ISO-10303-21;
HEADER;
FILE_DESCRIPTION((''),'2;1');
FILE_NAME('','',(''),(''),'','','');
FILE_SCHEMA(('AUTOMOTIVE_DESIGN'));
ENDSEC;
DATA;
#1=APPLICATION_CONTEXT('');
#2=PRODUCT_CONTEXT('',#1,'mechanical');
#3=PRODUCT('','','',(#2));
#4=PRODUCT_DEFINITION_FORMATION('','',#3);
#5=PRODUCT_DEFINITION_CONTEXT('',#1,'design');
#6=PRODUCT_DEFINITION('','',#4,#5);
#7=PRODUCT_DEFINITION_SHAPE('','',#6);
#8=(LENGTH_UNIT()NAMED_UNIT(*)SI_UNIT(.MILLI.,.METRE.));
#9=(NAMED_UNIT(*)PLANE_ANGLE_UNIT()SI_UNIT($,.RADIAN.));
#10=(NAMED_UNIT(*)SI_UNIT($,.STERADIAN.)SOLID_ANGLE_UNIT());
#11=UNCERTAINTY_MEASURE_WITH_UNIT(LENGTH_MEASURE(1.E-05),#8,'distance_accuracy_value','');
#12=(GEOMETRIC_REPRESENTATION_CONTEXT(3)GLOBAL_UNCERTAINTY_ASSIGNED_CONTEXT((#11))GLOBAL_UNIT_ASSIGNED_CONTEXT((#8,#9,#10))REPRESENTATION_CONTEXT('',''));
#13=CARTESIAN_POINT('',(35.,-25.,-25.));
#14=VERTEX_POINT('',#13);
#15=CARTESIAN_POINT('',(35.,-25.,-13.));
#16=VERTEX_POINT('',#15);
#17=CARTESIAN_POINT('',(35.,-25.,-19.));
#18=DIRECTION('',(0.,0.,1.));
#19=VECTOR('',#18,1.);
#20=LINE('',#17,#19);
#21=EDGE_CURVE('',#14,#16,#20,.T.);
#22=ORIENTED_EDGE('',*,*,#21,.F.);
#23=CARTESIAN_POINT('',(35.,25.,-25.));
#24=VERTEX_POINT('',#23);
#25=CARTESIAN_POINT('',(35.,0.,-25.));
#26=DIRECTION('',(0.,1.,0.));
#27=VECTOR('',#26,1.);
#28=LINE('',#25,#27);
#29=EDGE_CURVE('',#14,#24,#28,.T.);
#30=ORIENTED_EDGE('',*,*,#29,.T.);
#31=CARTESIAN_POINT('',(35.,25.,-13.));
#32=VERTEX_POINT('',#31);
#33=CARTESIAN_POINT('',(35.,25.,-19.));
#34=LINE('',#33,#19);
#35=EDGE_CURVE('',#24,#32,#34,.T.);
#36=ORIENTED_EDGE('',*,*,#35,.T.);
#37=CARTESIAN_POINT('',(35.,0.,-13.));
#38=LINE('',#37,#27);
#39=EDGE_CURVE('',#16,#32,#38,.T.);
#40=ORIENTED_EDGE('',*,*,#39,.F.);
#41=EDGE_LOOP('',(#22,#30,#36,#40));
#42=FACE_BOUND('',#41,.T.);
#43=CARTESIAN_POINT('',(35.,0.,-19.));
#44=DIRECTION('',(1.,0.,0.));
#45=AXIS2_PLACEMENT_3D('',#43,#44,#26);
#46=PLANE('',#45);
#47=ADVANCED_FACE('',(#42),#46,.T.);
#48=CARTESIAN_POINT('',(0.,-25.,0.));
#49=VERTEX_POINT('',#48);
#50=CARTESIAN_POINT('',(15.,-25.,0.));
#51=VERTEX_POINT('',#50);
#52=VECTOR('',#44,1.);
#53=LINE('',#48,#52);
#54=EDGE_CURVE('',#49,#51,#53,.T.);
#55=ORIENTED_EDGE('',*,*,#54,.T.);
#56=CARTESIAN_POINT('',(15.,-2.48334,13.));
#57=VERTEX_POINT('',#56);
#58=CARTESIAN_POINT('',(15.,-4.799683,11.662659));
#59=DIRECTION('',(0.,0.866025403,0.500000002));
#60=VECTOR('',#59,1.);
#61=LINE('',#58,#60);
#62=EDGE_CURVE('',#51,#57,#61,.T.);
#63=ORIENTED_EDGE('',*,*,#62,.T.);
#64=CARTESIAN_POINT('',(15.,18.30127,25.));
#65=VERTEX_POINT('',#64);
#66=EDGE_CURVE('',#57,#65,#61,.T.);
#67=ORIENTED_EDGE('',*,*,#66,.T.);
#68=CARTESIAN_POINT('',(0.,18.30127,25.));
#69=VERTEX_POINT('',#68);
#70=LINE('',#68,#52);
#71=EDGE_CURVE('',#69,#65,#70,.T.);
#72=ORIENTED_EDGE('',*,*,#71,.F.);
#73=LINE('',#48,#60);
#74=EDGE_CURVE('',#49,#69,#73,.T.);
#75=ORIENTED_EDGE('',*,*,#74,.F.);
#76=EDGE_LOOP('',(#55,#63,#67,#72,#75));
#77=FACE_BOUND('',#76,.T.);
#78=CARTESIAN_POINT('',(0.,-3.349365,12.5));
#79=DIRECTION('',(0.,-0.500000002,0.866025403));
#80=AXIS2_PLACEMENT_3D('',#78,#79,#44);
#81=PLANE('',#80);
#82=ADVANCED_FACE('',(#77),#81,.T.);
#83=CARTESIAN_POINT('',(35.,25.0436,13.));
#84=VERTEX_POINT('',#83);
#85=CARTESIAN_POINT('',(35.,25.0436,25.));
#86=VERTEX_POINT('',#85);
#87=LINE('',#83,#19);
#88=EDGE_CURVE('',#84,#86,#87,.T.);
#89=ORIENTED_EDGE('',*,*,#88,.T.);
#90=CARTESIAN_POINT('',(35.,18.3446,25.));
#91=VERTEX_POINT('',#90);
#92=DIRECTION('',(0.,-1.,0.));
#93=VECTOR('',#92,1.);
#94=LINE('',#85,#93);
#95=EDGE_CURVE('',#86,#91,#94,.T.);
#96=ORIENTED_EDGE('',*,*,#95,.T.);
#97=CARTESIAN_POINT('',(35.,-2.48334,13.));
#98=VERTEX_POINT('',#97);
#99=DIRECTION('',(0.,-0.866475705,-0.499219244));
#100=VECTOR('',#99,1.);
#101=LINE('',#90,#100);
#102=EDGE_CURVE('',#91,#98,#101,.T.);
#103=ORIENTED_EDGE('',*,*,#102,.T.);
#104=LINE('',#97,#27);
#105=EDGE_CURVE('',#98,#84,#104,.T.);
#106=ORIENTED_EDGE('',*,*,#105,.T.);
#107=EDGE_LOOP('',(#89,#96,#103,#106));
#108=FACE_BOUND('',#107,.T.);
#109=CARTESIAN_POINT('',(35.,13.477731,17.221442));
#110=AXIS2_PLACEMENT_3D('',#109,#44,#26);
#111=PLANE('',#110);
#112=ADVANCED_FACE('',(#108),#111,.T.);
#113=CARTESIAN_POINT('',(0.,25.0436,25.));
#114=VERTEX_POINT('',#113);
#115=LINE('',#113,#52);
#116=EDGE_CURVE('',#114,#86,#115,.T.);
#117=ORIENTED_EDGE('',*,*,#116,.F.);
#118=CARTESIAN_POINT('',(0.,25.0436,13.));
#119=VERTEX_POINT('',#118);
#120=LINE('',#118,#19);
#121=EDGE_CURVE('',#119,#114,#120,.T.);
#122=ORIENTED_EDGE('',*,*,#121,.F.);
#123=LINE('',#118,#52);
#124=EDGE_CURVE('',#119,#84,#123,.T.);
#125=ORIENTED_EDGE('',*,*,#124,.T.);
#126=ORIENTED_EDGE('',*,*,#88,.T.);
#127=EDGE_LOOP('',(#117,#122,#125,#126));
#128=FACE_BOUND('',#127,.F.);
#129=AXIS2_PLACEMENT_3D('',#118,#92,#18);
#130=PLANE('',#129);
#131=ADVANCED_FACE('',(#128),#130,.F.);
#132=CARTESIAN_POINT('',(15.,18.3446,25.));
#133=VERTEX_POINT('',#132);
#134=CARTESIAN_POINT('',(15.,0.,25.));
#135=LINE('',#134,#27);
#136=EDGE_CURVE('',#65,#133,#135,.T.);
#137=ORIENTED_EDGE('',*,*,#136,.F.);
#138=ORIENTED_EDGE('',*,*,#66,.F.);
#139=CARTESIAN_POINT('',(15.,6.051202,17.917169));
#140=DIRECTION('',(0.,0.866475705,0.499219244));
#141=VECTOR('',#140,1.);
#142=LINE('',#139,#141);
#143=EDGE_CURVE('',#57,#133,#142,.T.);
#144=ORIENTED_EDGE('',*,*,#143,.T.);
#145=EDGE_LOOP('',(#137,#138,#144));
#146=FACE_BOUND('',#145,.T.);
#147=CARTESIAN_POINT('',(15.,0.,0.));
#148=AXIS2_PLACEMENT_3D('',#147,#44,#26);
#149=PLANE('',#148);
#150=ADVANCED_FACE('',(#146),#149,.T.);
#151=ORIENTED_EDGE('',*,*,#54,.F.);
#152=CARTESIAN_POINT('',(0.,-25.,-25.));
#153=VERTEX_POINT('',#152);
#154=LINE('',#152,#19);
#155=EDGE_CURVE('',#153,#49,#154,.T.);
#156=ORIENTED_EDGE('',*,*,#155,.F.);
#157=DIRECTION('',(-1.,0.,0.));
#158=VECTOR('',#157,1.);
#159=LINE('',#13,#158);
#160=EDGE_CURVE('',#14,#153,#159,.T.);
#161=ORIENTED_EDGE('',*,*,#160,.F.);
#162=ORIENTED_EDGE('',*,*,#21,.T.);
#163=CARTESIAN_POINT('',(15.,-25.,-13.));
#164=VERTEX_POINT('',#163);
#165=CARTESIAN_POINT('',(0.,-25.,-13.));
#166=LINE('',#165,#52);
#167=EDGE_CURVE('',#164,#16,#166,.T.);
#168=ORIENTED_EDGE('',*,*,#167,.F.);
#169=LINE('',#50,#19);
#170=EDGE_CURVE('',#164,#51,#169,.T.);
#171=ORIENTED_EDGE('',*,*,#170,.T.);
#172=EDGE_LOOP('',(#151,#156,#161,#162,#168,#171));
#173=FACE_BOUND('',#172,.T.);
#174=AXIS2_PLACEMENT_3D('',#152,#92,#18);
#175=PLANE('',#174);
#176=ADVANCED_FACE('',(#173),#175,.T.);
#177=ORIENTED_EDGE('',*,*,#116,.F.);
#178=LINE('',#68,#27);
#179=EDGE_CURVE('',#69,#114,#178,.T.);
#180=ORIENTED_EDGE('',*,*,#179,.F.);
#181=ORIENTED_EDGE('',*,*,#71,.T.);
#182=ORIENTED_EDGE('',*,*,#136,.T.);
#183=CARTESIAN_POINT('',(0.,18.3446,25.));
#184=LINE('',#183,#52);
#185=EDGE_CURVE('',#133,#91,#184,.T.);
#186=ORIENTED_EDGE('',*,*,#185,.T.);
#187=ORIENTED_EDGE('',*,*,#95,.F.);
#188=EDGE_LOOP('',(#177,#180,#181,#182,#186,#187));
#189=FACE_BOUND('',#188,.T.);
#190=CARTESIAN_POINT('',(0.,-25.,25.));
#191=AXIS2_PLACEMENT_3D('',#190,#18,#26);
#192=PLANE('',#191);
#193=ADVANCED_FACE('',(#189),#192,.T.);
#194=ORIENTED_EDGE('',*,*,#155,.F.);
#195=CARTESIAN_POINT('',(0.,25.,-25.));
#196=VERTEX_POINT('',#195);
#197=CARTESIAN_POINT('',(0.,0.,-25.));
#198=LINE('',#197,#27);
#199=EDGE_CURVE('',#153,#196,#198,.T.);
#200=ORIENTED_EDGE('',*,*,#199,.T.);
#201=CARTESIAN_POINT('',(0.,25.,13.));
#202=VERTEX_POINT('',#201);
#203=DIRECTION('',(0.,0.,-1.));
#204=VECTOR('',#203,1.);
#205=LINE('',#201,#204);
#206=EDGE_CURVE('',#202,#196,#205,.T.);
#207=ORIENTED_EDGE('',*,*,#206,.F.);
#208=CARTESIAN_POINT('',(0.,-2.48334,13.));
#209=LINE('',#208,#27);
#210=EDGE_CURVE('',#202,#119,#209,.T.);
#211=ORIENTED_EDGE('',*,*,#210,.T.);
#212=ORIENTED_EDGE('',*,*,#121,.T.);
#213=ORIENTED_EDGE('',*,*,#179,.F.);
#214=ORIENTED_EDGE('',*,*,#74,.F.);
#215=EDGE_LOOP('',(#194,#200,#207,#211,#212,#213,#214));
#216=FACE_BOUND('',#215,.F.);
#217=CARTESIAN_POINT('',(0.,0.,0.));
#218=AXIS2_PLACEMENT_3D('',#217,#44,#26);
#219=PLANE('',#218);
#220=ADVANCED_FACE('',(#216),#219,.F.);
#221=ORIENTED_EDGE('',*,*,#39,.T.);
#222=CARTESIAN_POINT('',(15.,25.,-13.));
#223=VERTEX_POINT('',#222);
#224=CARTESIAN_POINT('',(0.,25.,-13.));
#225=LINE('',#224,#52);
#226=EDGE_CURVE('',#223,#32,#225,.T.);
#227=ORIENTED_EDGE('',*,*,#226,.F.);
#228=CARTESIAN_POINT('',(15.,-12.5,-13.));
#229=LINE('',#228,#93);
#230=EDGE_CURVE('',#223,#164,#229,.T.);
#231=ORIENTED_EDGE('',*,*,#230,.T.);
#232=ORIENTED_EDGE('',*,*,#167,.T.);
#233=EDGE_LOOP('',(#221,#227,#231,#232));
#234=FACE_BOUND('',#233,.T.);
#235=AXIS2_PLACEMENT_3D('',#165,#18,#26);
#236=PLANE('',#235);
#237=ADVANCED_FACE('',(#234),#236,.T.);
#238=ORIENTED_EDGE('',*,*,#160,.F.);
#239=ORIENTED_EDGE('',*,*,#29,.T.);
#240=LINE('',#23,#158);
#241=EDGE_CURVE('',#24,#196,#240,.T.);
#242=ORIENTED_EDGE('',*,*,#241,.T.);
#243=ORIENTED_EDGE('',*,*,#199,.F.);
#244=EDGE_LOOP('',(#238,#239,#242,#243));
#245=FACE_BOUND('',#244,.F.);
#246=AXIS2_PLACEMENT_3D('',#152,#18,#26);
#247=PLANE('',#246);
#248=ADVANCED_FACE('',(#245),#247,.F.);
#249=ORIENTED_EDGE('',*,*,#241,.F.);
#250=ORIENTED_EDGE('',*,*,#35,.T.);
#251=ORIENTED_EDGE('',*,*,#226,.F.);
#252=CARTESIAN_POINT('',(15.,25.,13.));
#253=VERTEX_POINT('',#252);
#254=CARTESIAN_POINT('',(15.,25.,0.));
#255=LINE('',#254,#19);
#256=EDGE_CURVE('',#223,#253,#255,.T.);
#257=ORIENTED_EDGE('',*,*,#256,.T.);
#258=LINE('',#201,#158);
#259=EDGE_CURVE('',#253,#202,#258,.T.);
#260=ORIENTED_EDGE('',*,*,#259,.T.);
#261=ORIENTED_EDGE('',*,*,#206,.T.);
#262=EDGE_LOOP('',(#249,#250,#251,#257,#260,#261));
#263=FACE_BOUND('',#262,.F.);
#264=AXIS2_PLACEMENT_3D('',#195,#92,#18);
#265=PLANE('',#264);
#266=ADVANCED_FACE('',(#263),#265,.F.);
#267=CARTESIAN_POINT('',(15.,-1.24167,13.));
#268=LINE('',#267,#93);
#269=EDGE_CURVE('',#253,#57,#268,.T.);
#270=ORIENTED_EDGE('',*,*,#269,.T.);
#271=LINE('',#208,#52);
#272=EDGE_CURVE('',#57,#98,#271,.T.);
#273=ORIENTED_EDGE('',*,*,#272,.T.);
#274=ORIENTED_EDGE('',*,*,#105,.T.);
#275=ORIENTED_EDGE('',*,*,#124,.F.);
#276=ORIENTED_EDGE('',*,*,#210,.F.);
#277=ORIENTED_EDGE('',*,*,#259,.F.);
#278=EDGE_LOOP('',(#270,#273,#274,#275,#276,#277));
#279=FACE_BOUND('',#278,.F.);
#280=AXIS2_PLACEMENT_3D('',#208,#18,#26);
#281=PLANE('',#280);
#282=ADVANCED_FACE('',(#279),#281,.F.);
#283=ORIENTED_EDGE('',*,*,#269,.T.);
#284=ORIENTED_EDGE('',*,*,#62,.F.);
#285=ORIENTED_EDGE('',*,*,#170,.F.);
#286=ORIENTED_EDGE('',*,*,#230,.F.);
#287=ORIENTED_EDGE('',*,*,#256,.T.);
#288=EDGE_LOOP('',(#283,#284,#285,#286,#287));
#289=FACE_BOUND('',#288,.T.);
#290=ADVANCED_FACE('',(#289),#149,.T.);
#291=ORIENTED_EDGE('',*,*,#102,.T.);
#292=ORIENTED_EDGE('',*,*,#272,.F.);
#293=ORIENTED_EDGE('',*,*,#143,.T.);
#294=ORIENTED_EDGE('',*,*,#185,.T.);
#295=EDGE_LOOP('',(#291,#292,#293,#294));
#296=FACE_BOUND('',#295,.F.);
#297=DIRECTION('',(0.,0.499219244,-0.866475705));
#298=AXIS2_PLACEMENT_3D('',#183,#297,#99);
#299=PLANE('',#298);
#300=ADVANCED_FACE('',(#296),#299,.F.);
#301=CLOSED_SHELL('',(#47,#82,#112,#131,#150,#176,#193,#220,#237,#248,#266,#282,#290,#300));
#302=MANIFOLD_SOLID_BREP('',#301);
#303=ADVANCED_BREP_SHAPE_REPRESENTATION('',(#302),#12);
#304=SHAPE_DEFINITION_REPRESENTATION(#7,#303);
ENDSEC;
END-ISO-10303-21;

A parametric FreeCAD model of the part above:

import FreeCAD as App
import Part
import Sketcher
from FreeCAD import Vector


def edges_at(feature, points):
    """Names of the edges that pass closest to the given points."""
    edges = feature.Shape.Edges
    near = lambda p: min(range(len(edges)), key=lambda i: edges[i].distToShape(Part.Vertex(*p))[0])
    return sorted({f"Edge{near(p) + 1}" for p in points})

doc = App.newDocument("Part")
body = doc.addObject("PartDesign::Body", "Body")

# Sketch on YZ plane
sketch1 = doc.addObject("Sketcher::SketchObject", "Sketch")
body.addObject(sketch1)
sketch1.AttachmentSupport = (doc.YZ_Plane, [""])
sketch1.MapMode = "FlatFace"
sketch1.addGeometry(Part.LineSegment(Vector(-25, 25, 0), Vector(-25, -25, 0)), False)
sketch1.addGeometry(Part.LineSegment(Vector(-25, -25, 0), Vector(25, -25, 0)), False)
sketch1.addGeometry(Part.LineSegment(Vector(25, -25, 0), Vector(25, 25, 0)), False)
sketch1.addGeometry(Part.LineSegment(Vector(25, 25, 0), Vector(-25, 25, 0)), False)
sketch1.addConstraint(Sketcher.Constraint("Coincident", 0, 2, 1, 1))
sketch1.addConstraint(Sketcher.Constraint("Coincident", 1, 2, 2, 1))
sketch1.addConstraint(Sketcher.Constraint("Coincident", 2, 2, 3, 1))
sketch1.addConstraint(Sketcher.Constraint("Coincident", 3, 2, 0, 1))
sketch1.addConstraint(Sketcher.Constraint("Vertical", 0))
sketch1.addConstraint(Sketcher.Constraint("Horizontal", 1))
sketch1.addConstraint(Sketcher.Constraint("Vertical", 2))
sketch1.addConstraint(Sketcher.Constraint("Horizontal", 3))
sketch1.addConstraint(Sketcher.Constraint("Symmetric", 0, 2, 2, 2, -1, 1))
sketch1.addConstraint(Sketcher.Constraint("Equal", 3, 0))
sketch1.addConstraint(Sketcher.Constraint("DistanceX", 1, 1, 1, 2, 50.0))
pad1 = doc.addObject("PartDesign::Pad", "Pad")
body.addObject(pad1)
pad1.Profile = sketch1
pad1.Length = 15
doc.recompute()

chamfer = doc.addObject("PartDesign::Chamfer", "Chamfer")
body.addObject(chamfer)
chamfer.Base = (pad1, edges_at(pad1, [(7.5, -25, 25)]))
chamfer.ChamferType = "Two distances"
chamfer.Size = 25
chamfer.Size2 = 43.30127

# Sketch on YZ plane
sketch2 = doc.addObject("Sketcher::SketchObject", "Sketch001")
body.addObject(sketch2)
sketch2.AttachmentSupport = (doc.YZ_Plane, [""])
sketch2.MapMode = "FlatFace"
sketch2.addGeometry(Part.LineSegment(Vector(-2, 13, 0), Vector(25, 13, 0)), False)
sketch2.addGeometry(Part.LineSegment(Vector(25, 13, 0), Vector(25, 25, 0)), False)
sketch2.addGeometry(Part.LineSegment(Vector(25, 25, 0), Vector(18, 25, 0)), False)
sketch2.addGeometry(Part.LineSegment(Vector(18, 25, 0), Vector(-2, 13, 0)), False)
sketch2.addConstraint(Sketcher.Constraint("Coincident", 0, 2, 1, 1))
sketch2.addConstraint(Sketcher.Constraint("Coincident", 1, 2, 2, 1))
sketch2.addConstraint(Sketcher.Constraint("Coincident", 2, 2, 3, 1))
sketch2.addConstraint(Sketcher.Constraint("Coincident", 3, 2, 0, 1))
sketch2.addConstraint(Sketcher.Constraint("Horizontal", 0))
sketch2.addConstraint(Sketcher.Constraint("Vertical", 1))
sketch2.addConstraint(Sketcher.Constraint("Horizontal", 2))
sketch2.addConstraint(Sketcher.Constraint("DistanceY", 1, 1, 1, 2, 12.0))
sketch2.addConstraint(Sketcher.Constraint("DistanceY", -1, 1, 0, 2, 13.0))
sketch2.addConstraint(Sketcher.Constraint("DistanceX", 2, 2, 2, 1, 6.699))
sketch2.addConstraint(Sketcher.Constraint("DistanceX", 0, 1, 0, 2, 27.52694))
sketch2.addConstraint(Sketcher.Constraint("DistanceX", -1, 1, 0, 2, 25.0436))
pad2 = doc.addObject("PartDesign::Pad", "Pad001")
body.addObject(pad2)
pad2.Profile = sketch2
pad2.Length = 35

# Sketch on YZ plane
sketch3 = doc.addObject("Sketcher::SketchObject", "Sketch002")
body.addObject(sketch3)
sketch3.AttachmentSupport = (doc.YZ_Plane, [""])
sketch3.MapMode = "FlatFace"
sketch3.addGeometry(Part.LineSegment(Vector(-25, -13, 0), Vector(-25, -25, 0)), False)
sketch3.addGeometry(Part.LineSegment(Vector(-25, -25, 0), Vector(25, -25, 0)), False)
sketch3.addGeometry(Part.LineSegment(Vector(25, -25, 0), Vector(25, -13, 0)), False)
sketch3.addGeometry(Part.LineSegment(Vector(25, -13, 0), Vector(-25, -13, 0)), False)
sketch3.addConstraint(Sketcher.Constraint("Coincident", 0, 2, 1, 1))
sketch3.addConstraint(Sketcher.Constraint("Coincident", 1, 2, 2, 1))
sketch3.addConstraint(Sketcher.Constraint("Coincident", 2, 2, 3, 1))
sketch3.addConstraint(Sketcher.Constraint("Coincident", 3, 2, 0, 1))
sketch3.addConstraint(Sketcher.Constraint("Vertical", 0))
sketch3.addConstraint(Sketcher.Constraint("Horizontal", 1))
sketch3.addConstraint(Sketcher.Constraint("Vertical", 2))
sketch3.addConstraint(Sketcher.Constraint("Horizontal", 3))
sketch3.addConstraint(Sketcher.Constraint("DistanceX", 1, 1, 1, 2, 50.0))
sketch3.addConstraint(Sketcher.Constraint("DistanceY", 0, 2, 0, 1, 12.0))
sketch3.addConstraint(Sketcher.Constraint("DistanceX", 0, 2, -1, 1, 25.0))
sketch3.addConstraint(Sketcher.Constraint("DistanceY", 0, 2, -1, 1, 25.0))
pad3 = doc.addObject("PartDesign::Pad", "Pad002")
body.addObject(pad3)
pad3.Profile = sketch3
pad3.Length = 35

doc.recompute()
